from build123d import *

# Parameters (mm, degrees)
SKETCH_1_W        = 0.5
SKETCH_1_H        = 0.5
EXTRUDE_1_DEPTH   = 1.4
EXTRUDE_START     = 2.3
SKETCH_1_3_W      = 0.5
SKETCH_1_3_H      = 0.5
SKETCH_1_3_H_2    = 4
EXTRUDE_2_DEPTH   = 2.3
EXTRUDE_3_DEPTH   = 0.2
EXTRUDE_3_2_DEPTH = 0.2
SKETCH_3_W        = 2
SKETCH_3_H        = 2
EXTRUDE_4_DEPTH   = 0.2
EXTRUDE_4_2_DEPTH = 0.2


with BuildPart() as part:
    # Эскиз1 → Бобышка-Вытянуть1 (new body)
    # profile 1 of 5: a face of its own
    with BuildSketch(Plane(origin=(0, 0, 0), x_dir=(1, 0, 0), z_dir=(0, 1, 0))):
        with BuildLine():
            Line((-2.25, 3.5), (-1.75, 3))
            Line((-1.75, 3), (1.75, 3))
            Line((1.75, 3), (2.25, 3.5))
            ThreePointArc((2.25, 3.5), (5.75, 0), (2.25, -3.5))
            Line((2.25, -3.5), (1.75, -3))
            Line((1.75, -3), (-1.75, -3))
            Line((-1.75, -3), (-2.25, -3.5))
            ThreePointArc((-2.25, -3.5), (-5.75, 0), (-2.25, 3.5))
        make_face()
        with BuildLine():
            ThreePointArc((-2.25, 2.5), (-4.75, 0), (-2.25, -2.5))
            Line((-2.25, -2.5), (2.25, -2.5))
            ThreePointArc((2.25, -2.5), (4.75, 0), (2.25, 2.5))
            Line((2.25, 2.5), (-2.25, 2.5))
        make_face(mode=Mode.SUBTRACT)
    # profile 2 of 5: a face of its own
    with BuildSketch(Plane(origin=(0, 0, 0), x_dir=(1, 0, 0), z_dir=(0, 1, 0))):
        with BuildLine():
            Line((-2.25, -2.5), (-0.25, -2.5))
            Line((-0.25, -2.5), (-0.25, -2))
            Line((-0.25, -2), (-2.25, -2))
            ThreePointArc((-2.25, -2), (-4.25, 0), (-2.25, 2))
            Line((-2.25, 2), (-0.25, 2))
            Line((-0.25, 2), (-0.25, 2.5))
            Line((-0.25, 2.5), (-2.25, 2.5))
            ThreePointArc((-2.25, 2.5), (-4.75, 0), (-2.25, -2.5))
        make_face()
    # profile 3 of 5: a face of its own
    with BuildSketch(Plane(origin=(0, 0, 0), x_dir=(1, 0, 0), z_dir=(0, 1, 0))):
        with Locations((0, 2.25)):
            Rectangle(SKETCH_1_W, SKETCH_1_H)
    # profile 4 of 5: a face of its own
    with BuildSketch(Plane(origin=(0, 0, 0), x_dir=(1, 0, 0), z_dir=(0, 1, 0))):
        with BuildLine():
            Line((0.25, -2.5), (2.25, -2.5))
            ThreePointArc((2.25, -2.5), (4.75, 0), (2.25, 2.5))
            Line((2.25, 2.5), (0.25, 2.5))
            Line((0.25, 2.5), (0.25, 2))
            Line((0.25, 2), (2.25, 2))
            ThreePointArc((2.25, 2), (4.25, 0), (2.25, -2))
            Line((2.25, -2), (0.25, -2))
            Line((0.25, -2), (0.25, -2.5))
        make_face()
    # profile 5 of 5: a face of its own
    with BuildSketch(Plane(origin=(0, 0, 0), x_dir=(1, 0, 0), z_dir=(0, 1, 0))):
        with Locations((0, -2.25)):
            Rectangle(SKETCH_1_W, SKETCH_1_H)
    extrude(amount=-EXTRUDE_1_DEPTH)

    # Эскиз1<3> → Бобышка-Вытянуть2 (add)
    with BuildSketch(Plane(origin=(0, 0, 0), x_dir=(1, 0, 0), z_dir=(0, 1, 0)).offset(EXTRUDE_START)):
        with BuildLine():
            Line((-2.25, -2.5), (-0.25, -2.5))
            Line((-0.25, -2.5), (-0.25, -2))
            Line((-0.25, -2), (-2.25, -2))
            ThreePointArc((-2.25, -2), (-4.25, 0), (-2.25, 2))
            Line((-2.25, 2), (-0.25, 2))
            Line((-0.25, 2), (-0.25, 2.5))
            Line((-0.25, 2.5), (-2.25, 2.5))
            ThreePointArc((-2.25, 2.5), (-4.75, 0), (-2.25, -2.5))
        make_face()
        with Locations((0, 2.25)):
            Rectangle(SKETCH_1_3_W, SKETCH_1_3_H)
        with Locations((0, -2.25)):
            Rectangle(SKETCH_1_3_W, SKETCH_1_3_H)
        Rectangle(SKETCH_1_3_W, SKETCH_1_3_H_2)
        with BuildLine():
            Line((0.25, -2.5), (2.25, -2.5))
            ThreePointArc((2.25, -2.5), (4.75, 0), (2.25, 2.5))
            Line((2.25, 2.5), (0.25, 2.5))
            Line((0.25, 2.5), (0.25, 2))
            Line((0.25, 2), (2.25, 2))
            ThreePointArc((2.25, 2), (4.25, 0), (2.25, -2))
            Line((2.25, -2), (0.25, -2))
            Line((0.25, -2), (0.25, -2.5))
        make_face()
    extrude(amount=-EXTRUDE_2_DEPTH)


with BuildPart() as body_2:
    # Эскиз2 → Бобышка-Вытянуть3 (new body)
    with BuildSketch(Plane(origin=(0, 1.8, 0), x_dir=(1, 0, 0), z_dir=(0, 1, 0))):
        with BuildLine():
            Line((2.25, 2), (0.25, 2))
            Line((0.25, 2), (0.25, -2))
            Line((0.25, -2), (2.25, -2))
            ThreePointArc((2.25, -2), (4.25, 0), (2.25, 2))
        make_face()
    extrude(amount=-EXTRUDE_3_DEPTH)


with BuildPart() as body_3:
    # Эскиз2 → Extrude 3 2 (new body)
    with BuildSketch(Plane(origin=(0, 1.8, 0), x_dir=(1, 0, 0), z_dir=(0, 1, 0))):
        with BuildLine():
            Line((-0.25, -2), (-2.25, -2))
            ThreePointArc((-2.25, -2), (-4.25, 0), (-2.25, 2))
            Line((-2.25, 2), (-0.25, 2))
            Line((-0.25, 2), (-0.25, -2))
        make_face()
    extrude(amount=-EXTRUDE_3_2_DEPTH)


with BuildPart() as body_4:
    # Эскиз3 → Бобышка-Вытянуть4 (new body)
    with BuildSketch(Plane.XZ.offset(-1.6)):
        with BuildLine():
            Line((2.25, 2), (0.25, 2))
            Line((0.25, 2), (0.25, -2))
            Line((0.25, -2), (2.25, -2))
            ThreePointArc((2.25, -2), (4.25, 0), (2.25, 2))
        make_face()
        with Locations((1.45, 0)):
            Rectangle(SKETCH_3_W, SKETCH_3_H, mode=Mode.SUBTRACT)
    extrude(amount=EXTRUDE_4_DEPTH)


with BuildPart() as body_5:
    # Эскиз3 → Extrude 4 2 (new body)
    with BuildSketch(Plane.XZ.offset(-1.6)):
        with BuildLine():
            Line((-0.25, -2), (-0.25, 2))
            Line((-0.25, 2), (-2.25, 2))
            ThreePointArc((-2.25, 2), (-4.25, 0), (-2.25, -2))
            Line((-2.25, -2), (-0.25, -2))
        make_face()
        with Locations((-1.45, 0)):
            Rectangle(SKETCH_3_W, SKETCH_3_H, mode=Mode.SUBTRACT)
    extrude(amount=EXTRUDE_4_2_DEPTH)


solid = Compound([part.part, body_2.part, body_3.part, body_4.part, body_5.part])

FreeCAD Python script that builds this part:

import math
import FreeCAD as App
import Part
import Sketcher

V = App.Vector
Q = App.Units.Quantity


def add_polygon(sketch, points):
    """Adds a closed chain of lines whose ends are joined by coincident constraints."""
    first, n = sketch.GeometryCount, len(points)
    for a, b in zip(points, points[1:] + points[:1]):
        sketch.addGeometry(Part.LineSegment(App.Vector(*a, 0), App.Vector(*b, 0)), False)
    for i in range(n):
        sketch.addConstraint(Sketcher.Constraint("Coincident", first + i, 2, first + (i + 1) % n, 1))

doc = App.newDocument("Part")
body = doc.addObject("PartDesign::Body", "Body")

sketch1 = doc.addObject("Sketcher::SketchObject", "Sketch")
body.addObject(sketch1)
sketch1.AttachmentSupport = (doc.XZ_Plane, [""])
sketch1.MapMode = "FlatFace"
sketch1.addGeometry(Part.LineSegment(V(-1.8, -3, 0), V(-2.2, -3.5, 0)), False)
sketch1.addGeometry(Part.ArcOfCircle(Part.Circle(V(-2.2, 0, 0), V(0, 0, 1), 3.5), math.radians(90), math.radians(270)), False)
sketch1.addGeometry(Part.LineSegment(V(-2.2, 3.5, 0), V(-1.8, 3, 0)), False)
sketch1.addGeometry(Part.LineSegment(V(-1.8, 3, 0), V(1.8, 3, 0)), False)
sketch1.addGeometry(Part.LineSegment(V(1.8, 3, 0), V(2.2, 3.5, 0)), False)
sketch1.addGeometry(Part.ArcOfCircle(Part.Circle(V(2.2, 0, 0), V(0, 0, 1), 3.5), math.radians(-90), math.radians(90)), False)
sketch1.addGeometry(Part.LineSegment(V(2.2, -3.5, 0), V(1.8, -3, 0)), False)
sketch1.addGeometry(Part.LineSegment(V(1.8, -3, 0), V(-1.8, -3, 0)), False)
sketch1.addGeometry(Part.ArcOfCircle(Part.Circle(V(2.2, 0, 0), V(0, 0, 1), 2), math.radians(-90), math.radians(90)), False)
sketch1.addGeometry(Part.LineSegment(V(2.2, 2, 0), V(-2.2, 2, 0)), False)
sketch1.addGeometry(Part.ArcOfCircle(Part.Circle(V(-2.2, 0, 0), V(0, 0, 1), 2), math.radians(90), math.radians(270)), False)
sketch1.addGeometry(Part.LineSegment(V(-2.2, -2, 0), V(2.2, -2, 0)), False)
sketch1.addConstraint(Sketcher.Constraint("Coincident", 0, 2, 1, 2))
sketch1.addConstraint(Sketcher.Constraint("Coincident", 1, 1, 2, 1))
sketch1.addConstraint(Sketcher.Constraint("Coincident", 2, 2, 3, 1))
sketch1.addConstraint(Sketcher.Constraint("Coincident", 3, 2, 4, 1))
sketch1.addConstraint(Sketcher.Constraint("Coincident", 4, 2, 5, 2))
sketch1.addConstraint(Sketcher.Constraint("Coincident", 5, 1, 6, 1))
sketch1.addConstraint(Sketcher.Constraint("Coincident", 6, 2, 7, 1))
sketch1.addConstraint(Sketcher.Constraint("Coincident", 7, 2, 0, 1))
sketch1.addConstraint(Sketcher.Constraint("Tangent", 8, 2, 9, 1))
sketch1.addConstraint(Sketcher.Constraint("Tangent", 9, 2, 10, 1))
sketch1.addConstraint(Sketcher.Constraint("Tangent", 10, 2, 11, 1))
sketch1.addConstraint(Sketcher.Constraint("Tangent", 11, 2, 8, 1))
sketch1.addConstraint(Sketcher.Constraint("Horizontal", 3))
sketch1.addConstraint(Sketcher.Constraint("Horizontal", 7))
sketch1.addConstraint(Sketcher.Constraint("Horizontal", 9))
sketch1.addConstraint(Sketcher.Constraint("Horizontal", 11))
sketch1.addConstraint(Sketcher.Constraint("Coincident", 8, 3, 5, 3))
sketch1.addConstraint(Sketcher.Constraint("Coincident", 10, 3, 1, 3))
sketch1.addConstraint(Sketcher.Constraint("Equal", 1, 5))
sketch1.addConstraint(Sketcher.Constraint("Symmetric", 1, 3, 5, 3, -1, 1))
sketch1.addConstraint(Sketcher.Constraint("Symmetric", 2, 2, 6, 2, -1, 1))
sketch1.addConstraint(Sketcher.Constraint("Perpendicular", 0, 2))
sketch1.addConstraint(Sketcher.Constraint("Perpendicular", 2, 4))
sketch1.addConstraint(Sketcher.Constraint("Perpendicular", 4, 6))
sketch1.addConstraint(Sketcher.Constraint("Vertical", 10, 3, 0, 2))
sketch1.addConstraint(Sketcher.Constraint("Vertical", 0, 2, 1, 1))
sketch1.addConstraint(Sketcher.Constraint("Vertical", 8, 3, 4, 2))
sketch1.addConstraint(Sketcher.Constraint("Vertical", 3, 2, 6, 2))
sketch1.addConstraint(Sketcher.Constraint("Radius", 8, Q("2 mm")))
sketch1.addConstraint(Sketcher.Constraint("Radius", 1, Q("3.5 mm")))
sketch1.addConstraint(Sketcher.Constraint("DistanceX", 3, 1, 3, 2, Q("3.5 mm")))
sketch1.addConstraint(Sketcher.Constraint("DistanceX", 9, 2, 9, 1, Q("4.5 mm")))
pad1 = doc.addObject("PartDesign::Pad", "Pad")
body.addObject(pad1)
pad1.Profile = sketch1
pad1.Length = 1.4

sketch2 = doc.addObject("Sketcher::SketchObject", "Sketch001")
body.addObject(sketch2)
sketch2.AttachmentSupport = (doc.XZ_Plane, [""])
sketch2.MapMode = "FlatFace"
sketch2.AttachmentOffset = App.Placement(V(0, 0, -2.3), App.Rotation())
sketch2.addGeometry(Part.LineSegment(V(-2.2, 2.5, 0), V(2.2, 2.5, 0)), False)
sketch2.addGeometry(Part.ArcOfCircle(Part.Circle(V(2.2, 0, 0), V(0, 0, 1), 2.5), math.radians(-90), math.radians(90)), False)
sketch2.addGeometry(Part.LineSegment(V(2.2, -2.5, 0), V(-2.2, -2.5, 0)), False)
sketch2.addGeometry(Part.ArcOfCircle(Part.Circle(V(-2.2, 0, 0), V(0, 0, 1), 2.5), math.radians(90), math.radians(270)), False)
sketch2.addGeometry(Part.LineSegment(V(0.2, 2, 0), V(0.2, -2, 0)), False)
sketch2.addGeometry(Part.LineSegment(V(0.2, -2, 0), V(2.2, -2, 0)), False)
sketch2.addGeometry(Part.ArcOfCircle(Part.Circle(V(2.2, 0, 0), V(0, 0, 1), 2), math.radians(-90), math.radians(90)), False)
sketch2.addGeometry(Part.LineSegment(V(2.2, 2, 0), V(0.2, 2, 0)), False)
sketch2.addGeometry(Part.LineSegment(V(-0.2, 2, 0), V(-2.2, 2, 0)), False)
sketch2.addGeometry(Part.ArcOfCircle(Part.Circle(V(-2.2, 0, 0), V(0, 0, 1), 2), math.radians(90), math.radians(270)), False)
sketch2.addGeometry(Part.LineSegment(V(-2.2, -2, 0), V(-0.2, -2, 0)), False)
sketch2.addGeometry(Part.LineSegment(V(-0.2, -2, 0), V(-0.2, 2, 0)), False)
sketch2.addConstraint(Sketcher.Constraint("Tangent", 0, 2, 1, 2))
sketch2.addConstraint(Sketcher.Constraint("Tangent", 1, 1, 2, 1))
sketch2.addConstraint(Sketcher.Constraint("Tangent", 2, 2, 3, 2))
sketch2.addConstraint(Sketcher.Constraint("Tangent", 3, 1, 0, 1))
sketch2.addConstraint(Sketcher.Constraint("Coincident", 4, 2, 5, 1))
sketch2.addConstraint(Sketcher.Constraint("Tangent", 5, 2, 6, 1))
sketch2.addConstraint(Sketcher.Constraint("Tangent", 6, 2, 7, 1))
sketch2.addConstraint(Sketcher.Constraint("Coincident", 7, 2, 4, 1))
sketch2.addConstraint(Sketcher.Constraint("Tangent", 8, 2, 9, 1))
sketch2.addConstraint(Sketcher.Constraint("Tangent", 9, 2, 10, 1))
sketch2.addConstraint(Sketcher.Constraint("Coincident", 10, 2, 11, 1))
sketch2.addConstraint(Sketcher.Constraint("Coincident", 11, 2, 8, 1))
sketch2.addConstraint(Sketcher.Constraint("Horizontal", 0))
sketch2.addConstraint(Sketcher.Constraint("Horizontal", 2))
sketch2.addConstraint(Sketcher.Constraint("Vertical", 4))
sketch2.addConstraint(Sketcher.Constraint("Horizontal", 5))
sketch2.addConstraint(Sketcher.Constraint("Horizontal", 7))
sketch2.addConstraint(Sketcher.Constraint("Horizontal", 8))
sketch2.addConstraint(Sketcher.Constraint("Horizontal", 10))
sketch2.addConstraint(Sketcher.Constraint("Vertical", 11))
sketch2.addConstraint(Sketcher.Constraint("Coincident", 6, 3, 1, 3))
sketch2.addConstraint(Sketcher.Constraint("Coincident", 9, 3, 3, 3))
sketch2.addConstraint(Sketcher.Constraint("Equal", 6, 9))
sketch2.addConstraint(Sketcher.Constraint("Symmetric", 1, 3, 3, 3, -1, 1))
sketch2.addConstraint(Sketcher.Constraint("Equal", 7, 8))
sketch2.addConstraint(Sketcher.Constraint("Radius", 6, Q("2 mm")))
sketch2.addConstraint(Sketcher.Constraint("Radius", 1, Q("2.5 mm")))
sketch2.addConstraint(Sketcher.Constraint("DistanceX", 5, 1, 5, 2, Q("2 mm")))
sketch2.addConstraint(Sketcher.Constraint("DistanceX", 0, 1, 0, 2, Q("4.5 mm")))
pad2 = doc.addObject("PartDesign::Pad", "Pad001")
body.addObject(pad2)
pad2.Profile = sketch2
pad2.Length = 2.3
body2 = doc.addObject("PartDesign::Body", "Body001")

sketch3 = doc.addObject("Sketcher::SketchObject", "Sketch002")
body2.addObject(sketch3)
sketch3.AttachmentSupport = (doc.getObject("XZ_Plane001"), [""])
sketch3.MapMode = "FlatFace"
sketch3.AttachmentOffset = App.Placement(V(0, 0, -1.8), App.Rotation())
sketch3.addGeometry(Part.LineSegment(V(2.2, -2, 0), V(0.2, -2, 0)), False)
sketch3.addGeometry(Part.LineSegment(V(0.2, -2, 0), V(0.2, 2, 0)), False)
sketch3.addGeometry(Part.LineSegment(V(0.2, 2, 0), V(2.2, 2, 0)), False)
sketch3.addGeometry(Part.ArcOfCircle(Part.Circle(V(2.2, 0, 0), V(0, 0, 1), 2), math.radians(-90), math.radians(90)), False)
sketch3.addConstraint(Sketcher.Constraint("Coincident", 0, 2, 1, 1))
sketch3.addConstraint(Sketcher.Constraint("Coincident", 1, 2, 2, 1))
sketch3.addConstraint(Sketcher.Constraint("Tangent", 2, 2, 3, 2))
sketch3.addConstraint(Sketcher.Constraint("Tangent", 3, 1, 0, 1))
sketch3.addConstraint(Sketcher.Constraint("Horizontal", 0))
sketch3.addConstraint(Sketcher.Constraint("Vertical", 1))
sketch3.addConstraint(Sketcher.Constraint("Horizontal", 2))
sketch3.addConstraint(Sketcher.Constraint("PointOnObject", 3, 3, -1))
sketch3.addConstraint(Sketcher.Constraint("Radius", 3, Q("2 mm")))
sketch3.addConstraint(Sketcher.Constraint("DistanceX", 0, 2, 0, 1, Q("2 mm")))
sketch3.addConstraint(Sketcher.Constraint("DistanceX", -1, 1, 3, 3, Q("2.25 mm")))
pad3 = doc.addObject("PartDesign::Pad", "Pad002")
body2.addObject(pad3)
pad3.Profile = sketch3
pad3.Length = 0.2
body3 = doc.addObject("PartDesign::Body", "Body002")

sketch4 = doc.addObject("Sketcher::SketchObject", "Sketch003")
body3.addObject(sketch4)
sketch4.AttachmentSupport = (doc.getObject("XZ_Plane002"), [""])
sketch4.MapMode = "FlatFace"
sketch4.AttachmentOffset = App.Placement(V(0, 0, -1.8), App.Rotation())
sketch4.addGeometry(Part.LineSegment(V(-2.2, 2, 0), V(-0.2, 2, 0)), False)
sketch4.addGeometry(Part.LineSegment(V(-0.2, 2, 0), V(-0.2, -2, 0)), False)
sketch4.addGeometry(Part.LineSegment(V(-0.2, -2, 0), V(-2.2, -2, 0)), False)
sketch4.addGeometry(Part.ArcOfCircle(Part.Circle(V(-2.2, 0, 0), V(0, 0, 1), 2), math.radians(90), math.radians(270)), False)
sketch4.addConstraint(Sketcher.Constraint("Coincident", 0, 2, 1, 1))
sketch4.addConstraint(Sketcher.Constraint("Coincident", 1, 2, 2, 1))
sketch4.addConstraint(Sketcher.Constraint("Tangent", 2, 2, 3, 2))
sketch4.addConstraint(Sketcher.Constraint("Tangent", 3, 1, 0, 1))
sketch4.addConstraint(Sketcher.Constraint("Horizontal", 0))
sketch4.addConstraint(Sketcher.Constraint("Vertical", 1))
sketch4.addConstraint(Sketcher.Constraint("Horizontal", 2))
sketch4.addConstraint(Sketcher.Constraint("PointOnObject", 3, 3, -1))
sketch4.addConstraint(Sketcher.Constraint("Radius", 3, Q("2 mm")))
sketch4.addConstraint(Sketcher.Constraint("DistanceX", 0, 1, 0, 2, Q("2 mm")))
sketch4.addConstraint(Sketcher.Constraint("DistanceX", 3, 3, -1, 1, Q("2.25 mm")))
pad4 = doc.addObject("PartDesign::Pad", "Pad003")
body3.addObject(pad4)
pad4.Profile = sketch4
pad4.Length = 0.2
body4 = doc.addObject("PartDesign::Body", "Body003")

sketch5 = doc.addObject("Sketcher::SketchObject", "Sketch004")
body4.addObject(sketch5)
sketch5.AttachmentSupport = (doc.getObject("XZ_Plane003"), [""])
sketch5.MapMode = "FlatFace"
sketch5.AttachmentOffset = App.Placement(V(0, 0, -1.6), App.Rotation())
sketch5.addGeometry(Part.LineSegment(V(2.2, 2, 0), V(0.2, 2, 0)), False)
sketch5.addGeometry(Part.LineSegment(V(0.2, 2, 0), V(0.2, -2, 0)), False)
sketch5.addGeometry(Part.LineSegment(V(0.2, -2, 0), V(2.2, -2, 0)), False)
sketch5.addGeometry(Part.ArcOfCircle(Part.Circle(V(2.2, 0, 0), V(0, 0, 1), 2), math.radians(-90), math.radians(90)), False)
add_polygon(sketch5, [(2.5, -1), (0.5, -1), (0.5, 1), (2.5, 1)])
sketch5.addConstraint(Sketcher.Constraint("Coincident", 0, 2, 1, 1))
sketch5.addConstraint(Sketcher.Constraint("Coincident", 1, 2, 2, 1))
sketch5.addConstraint(Sketcher.Constraint("Tangent", 2, 2, 3, 1))
sketch5.addConstraint(Sketcher.Constraint("Tangent", 3, 2, 0, 1))
sketch5.addConstraint(Sketcher.Constraint("Horizontal", 0))
sketch5.addConstraint(Sketcher.Constraint("Vertical", 1))
sketch5.addConstraint(Sketcher.Constraint("Horizontal", 2))
sketch5.addConstraint(Sketcher.Constraint("Horizontal", 4))
sketch5.addConstraint(Sketcher.Constraint("Vertical", 5))
sketch5.addConstraint(Sketcher.Constraint("Horizontal", 6))
sketch5.addConstraint(Sketcher.Constraint("Vertical", 7))
sketch5.addConstraint(Sketcher.Constraint("PointOnObject", 3, 3, -1))
sketch5.addConstraint(Sketcher.Constraint("Equal", 2, 4))
sketch5.addConstraint(Sketcher.Constraint("Equal", 6, 5))
sketch5.addConstraint(Sketcher.Constraint("Radius", 3, Q("2 mm")))
sketch5.addConstraint(Sketcher.Constraint("DistanceX", 0, 2, 0, 1, Q("2 mm")))
sketch5.addConstraint(Sketcher.Constraint("DistanceY", 4, 2, -1, 1, Q("1 mm")))
sketch5.addConstraint(Sketcher.Constraint("DistanceX", 1, 2, 4, 2, Q("0.2 mm")))
sketch5.addConstraint(Sketcher.Constraint("DistanceX", -1, 1, 3, 3, Q("2.25 mm")))
pad5 = doc.addObject("PartDesign::Pad", "Pad004")
body4.addObject(pad5)
pad5.Profile = sketch5
pad5.Length = 0.2
body5 = doc.addObject("PartDesign::Body", "Body004")

sketch6 = doc.addObject("Sketcher::SketchObject", "Sketch005")
body5.addObject(sketch6)
sketch6.AttachmentSupport = (doc.getObject("XZ_Plane004"), [""])
sketch6.MapMode = "FlatFace"
sketch6.AttachmentOffset = App.Placement(V(0, 0, -1.6), App.Rotation())
sketch6.addGeometry(Part.LineSegment(V(-0.2, -2, 0), V(-0.2, 2, 0)), False)
sketch6.addGeometry(Part.LineSegment(V(-0.2, 2, 0), V(-2.2, 2, 0)), False)
sketch6.addGeometry(Part.ArcOfCircle(Part.Circle(V(-2.2, 0, 0), V(0, 0, 1), 2), math.radians(90), math.radians(270)), False)
sketch6.addGeometry(Part.LineSegment(V(-2.2, -2, 0), V(-0.2, -2, 0)), False)
add_polygon(sketch6, [(-0.5, -1), (-2.5, -1), (-2.5, 1), (-0.5, 1)])
sketch6.addConstraint(Sketcher.Constraint("Coincident", 0, 2, 1, 1))
sketch6.addConstraint(Sketcher.Constraint("Tangent", 1, 2, 2, 1))
sketch6.addConstraint(Sketcher.Constraint("Tangent", 2, 2, 3, 1))
sketch6.addConstraint(Sketcher.Constraint("Coincident", 3, 2, 0, 1))
sketch6.addConstraint(Sketcher.Constraint("Vertical", 0))
sketch6.addConstraint(Sketcher.Constraint("Horizontal", 1))
sketch6.addConstraint(Sketcher.Constraint("Horizontal", 3))
sketch6.addConstraint(Sketcher.Constraint("Horizontal", 4))
sketch6.addConstraint(Sketcher.Constraint("Vertical", 5))
sketch6.addConstraint(Sketcher.Constraint("Horizontal", 6))
sketch6.addConstraint(Sketcher.Constraint("Vertical", 7))
sketch6.addConstraint(Sketcher.Constraint("PointOnObject", 2, 3, -1))
sketch6.addConstraint(Sketcher.Constraint("Equal", 3, 4))
sketch6.addConstraint(Sketcher.Constraint("Equal", 6, 5))
sketch6.addConstraint(Sketcher.Constraint("Radius", 2, Q("2 mm")))
sketch6.addConstraint(Sketcher.Constraint("DistanceX", 1, 2, 1, 1, Q("2 mm")))
sketch6.addConstraint(Sketcher.Constraint("DistanceY", 4, 2, -1, 1, Q("1 mm")))
sketch6.addConstraint(Sketcher.Constraint("DistanceX", 4, 2, 2, 3, Q("0.2 mm")))
sketch6.addConstraint(Sketcher.Constraint("DistanceX", 2, 3, -1, 1, Q("2.25 mm")))
pad6 = doc.addObject("PartDesign::Pad", "Pad005")
body5.addObject(pad6)
pad6.Profile = sketch6
pad6.Length = 0.2

doc.recompute()
